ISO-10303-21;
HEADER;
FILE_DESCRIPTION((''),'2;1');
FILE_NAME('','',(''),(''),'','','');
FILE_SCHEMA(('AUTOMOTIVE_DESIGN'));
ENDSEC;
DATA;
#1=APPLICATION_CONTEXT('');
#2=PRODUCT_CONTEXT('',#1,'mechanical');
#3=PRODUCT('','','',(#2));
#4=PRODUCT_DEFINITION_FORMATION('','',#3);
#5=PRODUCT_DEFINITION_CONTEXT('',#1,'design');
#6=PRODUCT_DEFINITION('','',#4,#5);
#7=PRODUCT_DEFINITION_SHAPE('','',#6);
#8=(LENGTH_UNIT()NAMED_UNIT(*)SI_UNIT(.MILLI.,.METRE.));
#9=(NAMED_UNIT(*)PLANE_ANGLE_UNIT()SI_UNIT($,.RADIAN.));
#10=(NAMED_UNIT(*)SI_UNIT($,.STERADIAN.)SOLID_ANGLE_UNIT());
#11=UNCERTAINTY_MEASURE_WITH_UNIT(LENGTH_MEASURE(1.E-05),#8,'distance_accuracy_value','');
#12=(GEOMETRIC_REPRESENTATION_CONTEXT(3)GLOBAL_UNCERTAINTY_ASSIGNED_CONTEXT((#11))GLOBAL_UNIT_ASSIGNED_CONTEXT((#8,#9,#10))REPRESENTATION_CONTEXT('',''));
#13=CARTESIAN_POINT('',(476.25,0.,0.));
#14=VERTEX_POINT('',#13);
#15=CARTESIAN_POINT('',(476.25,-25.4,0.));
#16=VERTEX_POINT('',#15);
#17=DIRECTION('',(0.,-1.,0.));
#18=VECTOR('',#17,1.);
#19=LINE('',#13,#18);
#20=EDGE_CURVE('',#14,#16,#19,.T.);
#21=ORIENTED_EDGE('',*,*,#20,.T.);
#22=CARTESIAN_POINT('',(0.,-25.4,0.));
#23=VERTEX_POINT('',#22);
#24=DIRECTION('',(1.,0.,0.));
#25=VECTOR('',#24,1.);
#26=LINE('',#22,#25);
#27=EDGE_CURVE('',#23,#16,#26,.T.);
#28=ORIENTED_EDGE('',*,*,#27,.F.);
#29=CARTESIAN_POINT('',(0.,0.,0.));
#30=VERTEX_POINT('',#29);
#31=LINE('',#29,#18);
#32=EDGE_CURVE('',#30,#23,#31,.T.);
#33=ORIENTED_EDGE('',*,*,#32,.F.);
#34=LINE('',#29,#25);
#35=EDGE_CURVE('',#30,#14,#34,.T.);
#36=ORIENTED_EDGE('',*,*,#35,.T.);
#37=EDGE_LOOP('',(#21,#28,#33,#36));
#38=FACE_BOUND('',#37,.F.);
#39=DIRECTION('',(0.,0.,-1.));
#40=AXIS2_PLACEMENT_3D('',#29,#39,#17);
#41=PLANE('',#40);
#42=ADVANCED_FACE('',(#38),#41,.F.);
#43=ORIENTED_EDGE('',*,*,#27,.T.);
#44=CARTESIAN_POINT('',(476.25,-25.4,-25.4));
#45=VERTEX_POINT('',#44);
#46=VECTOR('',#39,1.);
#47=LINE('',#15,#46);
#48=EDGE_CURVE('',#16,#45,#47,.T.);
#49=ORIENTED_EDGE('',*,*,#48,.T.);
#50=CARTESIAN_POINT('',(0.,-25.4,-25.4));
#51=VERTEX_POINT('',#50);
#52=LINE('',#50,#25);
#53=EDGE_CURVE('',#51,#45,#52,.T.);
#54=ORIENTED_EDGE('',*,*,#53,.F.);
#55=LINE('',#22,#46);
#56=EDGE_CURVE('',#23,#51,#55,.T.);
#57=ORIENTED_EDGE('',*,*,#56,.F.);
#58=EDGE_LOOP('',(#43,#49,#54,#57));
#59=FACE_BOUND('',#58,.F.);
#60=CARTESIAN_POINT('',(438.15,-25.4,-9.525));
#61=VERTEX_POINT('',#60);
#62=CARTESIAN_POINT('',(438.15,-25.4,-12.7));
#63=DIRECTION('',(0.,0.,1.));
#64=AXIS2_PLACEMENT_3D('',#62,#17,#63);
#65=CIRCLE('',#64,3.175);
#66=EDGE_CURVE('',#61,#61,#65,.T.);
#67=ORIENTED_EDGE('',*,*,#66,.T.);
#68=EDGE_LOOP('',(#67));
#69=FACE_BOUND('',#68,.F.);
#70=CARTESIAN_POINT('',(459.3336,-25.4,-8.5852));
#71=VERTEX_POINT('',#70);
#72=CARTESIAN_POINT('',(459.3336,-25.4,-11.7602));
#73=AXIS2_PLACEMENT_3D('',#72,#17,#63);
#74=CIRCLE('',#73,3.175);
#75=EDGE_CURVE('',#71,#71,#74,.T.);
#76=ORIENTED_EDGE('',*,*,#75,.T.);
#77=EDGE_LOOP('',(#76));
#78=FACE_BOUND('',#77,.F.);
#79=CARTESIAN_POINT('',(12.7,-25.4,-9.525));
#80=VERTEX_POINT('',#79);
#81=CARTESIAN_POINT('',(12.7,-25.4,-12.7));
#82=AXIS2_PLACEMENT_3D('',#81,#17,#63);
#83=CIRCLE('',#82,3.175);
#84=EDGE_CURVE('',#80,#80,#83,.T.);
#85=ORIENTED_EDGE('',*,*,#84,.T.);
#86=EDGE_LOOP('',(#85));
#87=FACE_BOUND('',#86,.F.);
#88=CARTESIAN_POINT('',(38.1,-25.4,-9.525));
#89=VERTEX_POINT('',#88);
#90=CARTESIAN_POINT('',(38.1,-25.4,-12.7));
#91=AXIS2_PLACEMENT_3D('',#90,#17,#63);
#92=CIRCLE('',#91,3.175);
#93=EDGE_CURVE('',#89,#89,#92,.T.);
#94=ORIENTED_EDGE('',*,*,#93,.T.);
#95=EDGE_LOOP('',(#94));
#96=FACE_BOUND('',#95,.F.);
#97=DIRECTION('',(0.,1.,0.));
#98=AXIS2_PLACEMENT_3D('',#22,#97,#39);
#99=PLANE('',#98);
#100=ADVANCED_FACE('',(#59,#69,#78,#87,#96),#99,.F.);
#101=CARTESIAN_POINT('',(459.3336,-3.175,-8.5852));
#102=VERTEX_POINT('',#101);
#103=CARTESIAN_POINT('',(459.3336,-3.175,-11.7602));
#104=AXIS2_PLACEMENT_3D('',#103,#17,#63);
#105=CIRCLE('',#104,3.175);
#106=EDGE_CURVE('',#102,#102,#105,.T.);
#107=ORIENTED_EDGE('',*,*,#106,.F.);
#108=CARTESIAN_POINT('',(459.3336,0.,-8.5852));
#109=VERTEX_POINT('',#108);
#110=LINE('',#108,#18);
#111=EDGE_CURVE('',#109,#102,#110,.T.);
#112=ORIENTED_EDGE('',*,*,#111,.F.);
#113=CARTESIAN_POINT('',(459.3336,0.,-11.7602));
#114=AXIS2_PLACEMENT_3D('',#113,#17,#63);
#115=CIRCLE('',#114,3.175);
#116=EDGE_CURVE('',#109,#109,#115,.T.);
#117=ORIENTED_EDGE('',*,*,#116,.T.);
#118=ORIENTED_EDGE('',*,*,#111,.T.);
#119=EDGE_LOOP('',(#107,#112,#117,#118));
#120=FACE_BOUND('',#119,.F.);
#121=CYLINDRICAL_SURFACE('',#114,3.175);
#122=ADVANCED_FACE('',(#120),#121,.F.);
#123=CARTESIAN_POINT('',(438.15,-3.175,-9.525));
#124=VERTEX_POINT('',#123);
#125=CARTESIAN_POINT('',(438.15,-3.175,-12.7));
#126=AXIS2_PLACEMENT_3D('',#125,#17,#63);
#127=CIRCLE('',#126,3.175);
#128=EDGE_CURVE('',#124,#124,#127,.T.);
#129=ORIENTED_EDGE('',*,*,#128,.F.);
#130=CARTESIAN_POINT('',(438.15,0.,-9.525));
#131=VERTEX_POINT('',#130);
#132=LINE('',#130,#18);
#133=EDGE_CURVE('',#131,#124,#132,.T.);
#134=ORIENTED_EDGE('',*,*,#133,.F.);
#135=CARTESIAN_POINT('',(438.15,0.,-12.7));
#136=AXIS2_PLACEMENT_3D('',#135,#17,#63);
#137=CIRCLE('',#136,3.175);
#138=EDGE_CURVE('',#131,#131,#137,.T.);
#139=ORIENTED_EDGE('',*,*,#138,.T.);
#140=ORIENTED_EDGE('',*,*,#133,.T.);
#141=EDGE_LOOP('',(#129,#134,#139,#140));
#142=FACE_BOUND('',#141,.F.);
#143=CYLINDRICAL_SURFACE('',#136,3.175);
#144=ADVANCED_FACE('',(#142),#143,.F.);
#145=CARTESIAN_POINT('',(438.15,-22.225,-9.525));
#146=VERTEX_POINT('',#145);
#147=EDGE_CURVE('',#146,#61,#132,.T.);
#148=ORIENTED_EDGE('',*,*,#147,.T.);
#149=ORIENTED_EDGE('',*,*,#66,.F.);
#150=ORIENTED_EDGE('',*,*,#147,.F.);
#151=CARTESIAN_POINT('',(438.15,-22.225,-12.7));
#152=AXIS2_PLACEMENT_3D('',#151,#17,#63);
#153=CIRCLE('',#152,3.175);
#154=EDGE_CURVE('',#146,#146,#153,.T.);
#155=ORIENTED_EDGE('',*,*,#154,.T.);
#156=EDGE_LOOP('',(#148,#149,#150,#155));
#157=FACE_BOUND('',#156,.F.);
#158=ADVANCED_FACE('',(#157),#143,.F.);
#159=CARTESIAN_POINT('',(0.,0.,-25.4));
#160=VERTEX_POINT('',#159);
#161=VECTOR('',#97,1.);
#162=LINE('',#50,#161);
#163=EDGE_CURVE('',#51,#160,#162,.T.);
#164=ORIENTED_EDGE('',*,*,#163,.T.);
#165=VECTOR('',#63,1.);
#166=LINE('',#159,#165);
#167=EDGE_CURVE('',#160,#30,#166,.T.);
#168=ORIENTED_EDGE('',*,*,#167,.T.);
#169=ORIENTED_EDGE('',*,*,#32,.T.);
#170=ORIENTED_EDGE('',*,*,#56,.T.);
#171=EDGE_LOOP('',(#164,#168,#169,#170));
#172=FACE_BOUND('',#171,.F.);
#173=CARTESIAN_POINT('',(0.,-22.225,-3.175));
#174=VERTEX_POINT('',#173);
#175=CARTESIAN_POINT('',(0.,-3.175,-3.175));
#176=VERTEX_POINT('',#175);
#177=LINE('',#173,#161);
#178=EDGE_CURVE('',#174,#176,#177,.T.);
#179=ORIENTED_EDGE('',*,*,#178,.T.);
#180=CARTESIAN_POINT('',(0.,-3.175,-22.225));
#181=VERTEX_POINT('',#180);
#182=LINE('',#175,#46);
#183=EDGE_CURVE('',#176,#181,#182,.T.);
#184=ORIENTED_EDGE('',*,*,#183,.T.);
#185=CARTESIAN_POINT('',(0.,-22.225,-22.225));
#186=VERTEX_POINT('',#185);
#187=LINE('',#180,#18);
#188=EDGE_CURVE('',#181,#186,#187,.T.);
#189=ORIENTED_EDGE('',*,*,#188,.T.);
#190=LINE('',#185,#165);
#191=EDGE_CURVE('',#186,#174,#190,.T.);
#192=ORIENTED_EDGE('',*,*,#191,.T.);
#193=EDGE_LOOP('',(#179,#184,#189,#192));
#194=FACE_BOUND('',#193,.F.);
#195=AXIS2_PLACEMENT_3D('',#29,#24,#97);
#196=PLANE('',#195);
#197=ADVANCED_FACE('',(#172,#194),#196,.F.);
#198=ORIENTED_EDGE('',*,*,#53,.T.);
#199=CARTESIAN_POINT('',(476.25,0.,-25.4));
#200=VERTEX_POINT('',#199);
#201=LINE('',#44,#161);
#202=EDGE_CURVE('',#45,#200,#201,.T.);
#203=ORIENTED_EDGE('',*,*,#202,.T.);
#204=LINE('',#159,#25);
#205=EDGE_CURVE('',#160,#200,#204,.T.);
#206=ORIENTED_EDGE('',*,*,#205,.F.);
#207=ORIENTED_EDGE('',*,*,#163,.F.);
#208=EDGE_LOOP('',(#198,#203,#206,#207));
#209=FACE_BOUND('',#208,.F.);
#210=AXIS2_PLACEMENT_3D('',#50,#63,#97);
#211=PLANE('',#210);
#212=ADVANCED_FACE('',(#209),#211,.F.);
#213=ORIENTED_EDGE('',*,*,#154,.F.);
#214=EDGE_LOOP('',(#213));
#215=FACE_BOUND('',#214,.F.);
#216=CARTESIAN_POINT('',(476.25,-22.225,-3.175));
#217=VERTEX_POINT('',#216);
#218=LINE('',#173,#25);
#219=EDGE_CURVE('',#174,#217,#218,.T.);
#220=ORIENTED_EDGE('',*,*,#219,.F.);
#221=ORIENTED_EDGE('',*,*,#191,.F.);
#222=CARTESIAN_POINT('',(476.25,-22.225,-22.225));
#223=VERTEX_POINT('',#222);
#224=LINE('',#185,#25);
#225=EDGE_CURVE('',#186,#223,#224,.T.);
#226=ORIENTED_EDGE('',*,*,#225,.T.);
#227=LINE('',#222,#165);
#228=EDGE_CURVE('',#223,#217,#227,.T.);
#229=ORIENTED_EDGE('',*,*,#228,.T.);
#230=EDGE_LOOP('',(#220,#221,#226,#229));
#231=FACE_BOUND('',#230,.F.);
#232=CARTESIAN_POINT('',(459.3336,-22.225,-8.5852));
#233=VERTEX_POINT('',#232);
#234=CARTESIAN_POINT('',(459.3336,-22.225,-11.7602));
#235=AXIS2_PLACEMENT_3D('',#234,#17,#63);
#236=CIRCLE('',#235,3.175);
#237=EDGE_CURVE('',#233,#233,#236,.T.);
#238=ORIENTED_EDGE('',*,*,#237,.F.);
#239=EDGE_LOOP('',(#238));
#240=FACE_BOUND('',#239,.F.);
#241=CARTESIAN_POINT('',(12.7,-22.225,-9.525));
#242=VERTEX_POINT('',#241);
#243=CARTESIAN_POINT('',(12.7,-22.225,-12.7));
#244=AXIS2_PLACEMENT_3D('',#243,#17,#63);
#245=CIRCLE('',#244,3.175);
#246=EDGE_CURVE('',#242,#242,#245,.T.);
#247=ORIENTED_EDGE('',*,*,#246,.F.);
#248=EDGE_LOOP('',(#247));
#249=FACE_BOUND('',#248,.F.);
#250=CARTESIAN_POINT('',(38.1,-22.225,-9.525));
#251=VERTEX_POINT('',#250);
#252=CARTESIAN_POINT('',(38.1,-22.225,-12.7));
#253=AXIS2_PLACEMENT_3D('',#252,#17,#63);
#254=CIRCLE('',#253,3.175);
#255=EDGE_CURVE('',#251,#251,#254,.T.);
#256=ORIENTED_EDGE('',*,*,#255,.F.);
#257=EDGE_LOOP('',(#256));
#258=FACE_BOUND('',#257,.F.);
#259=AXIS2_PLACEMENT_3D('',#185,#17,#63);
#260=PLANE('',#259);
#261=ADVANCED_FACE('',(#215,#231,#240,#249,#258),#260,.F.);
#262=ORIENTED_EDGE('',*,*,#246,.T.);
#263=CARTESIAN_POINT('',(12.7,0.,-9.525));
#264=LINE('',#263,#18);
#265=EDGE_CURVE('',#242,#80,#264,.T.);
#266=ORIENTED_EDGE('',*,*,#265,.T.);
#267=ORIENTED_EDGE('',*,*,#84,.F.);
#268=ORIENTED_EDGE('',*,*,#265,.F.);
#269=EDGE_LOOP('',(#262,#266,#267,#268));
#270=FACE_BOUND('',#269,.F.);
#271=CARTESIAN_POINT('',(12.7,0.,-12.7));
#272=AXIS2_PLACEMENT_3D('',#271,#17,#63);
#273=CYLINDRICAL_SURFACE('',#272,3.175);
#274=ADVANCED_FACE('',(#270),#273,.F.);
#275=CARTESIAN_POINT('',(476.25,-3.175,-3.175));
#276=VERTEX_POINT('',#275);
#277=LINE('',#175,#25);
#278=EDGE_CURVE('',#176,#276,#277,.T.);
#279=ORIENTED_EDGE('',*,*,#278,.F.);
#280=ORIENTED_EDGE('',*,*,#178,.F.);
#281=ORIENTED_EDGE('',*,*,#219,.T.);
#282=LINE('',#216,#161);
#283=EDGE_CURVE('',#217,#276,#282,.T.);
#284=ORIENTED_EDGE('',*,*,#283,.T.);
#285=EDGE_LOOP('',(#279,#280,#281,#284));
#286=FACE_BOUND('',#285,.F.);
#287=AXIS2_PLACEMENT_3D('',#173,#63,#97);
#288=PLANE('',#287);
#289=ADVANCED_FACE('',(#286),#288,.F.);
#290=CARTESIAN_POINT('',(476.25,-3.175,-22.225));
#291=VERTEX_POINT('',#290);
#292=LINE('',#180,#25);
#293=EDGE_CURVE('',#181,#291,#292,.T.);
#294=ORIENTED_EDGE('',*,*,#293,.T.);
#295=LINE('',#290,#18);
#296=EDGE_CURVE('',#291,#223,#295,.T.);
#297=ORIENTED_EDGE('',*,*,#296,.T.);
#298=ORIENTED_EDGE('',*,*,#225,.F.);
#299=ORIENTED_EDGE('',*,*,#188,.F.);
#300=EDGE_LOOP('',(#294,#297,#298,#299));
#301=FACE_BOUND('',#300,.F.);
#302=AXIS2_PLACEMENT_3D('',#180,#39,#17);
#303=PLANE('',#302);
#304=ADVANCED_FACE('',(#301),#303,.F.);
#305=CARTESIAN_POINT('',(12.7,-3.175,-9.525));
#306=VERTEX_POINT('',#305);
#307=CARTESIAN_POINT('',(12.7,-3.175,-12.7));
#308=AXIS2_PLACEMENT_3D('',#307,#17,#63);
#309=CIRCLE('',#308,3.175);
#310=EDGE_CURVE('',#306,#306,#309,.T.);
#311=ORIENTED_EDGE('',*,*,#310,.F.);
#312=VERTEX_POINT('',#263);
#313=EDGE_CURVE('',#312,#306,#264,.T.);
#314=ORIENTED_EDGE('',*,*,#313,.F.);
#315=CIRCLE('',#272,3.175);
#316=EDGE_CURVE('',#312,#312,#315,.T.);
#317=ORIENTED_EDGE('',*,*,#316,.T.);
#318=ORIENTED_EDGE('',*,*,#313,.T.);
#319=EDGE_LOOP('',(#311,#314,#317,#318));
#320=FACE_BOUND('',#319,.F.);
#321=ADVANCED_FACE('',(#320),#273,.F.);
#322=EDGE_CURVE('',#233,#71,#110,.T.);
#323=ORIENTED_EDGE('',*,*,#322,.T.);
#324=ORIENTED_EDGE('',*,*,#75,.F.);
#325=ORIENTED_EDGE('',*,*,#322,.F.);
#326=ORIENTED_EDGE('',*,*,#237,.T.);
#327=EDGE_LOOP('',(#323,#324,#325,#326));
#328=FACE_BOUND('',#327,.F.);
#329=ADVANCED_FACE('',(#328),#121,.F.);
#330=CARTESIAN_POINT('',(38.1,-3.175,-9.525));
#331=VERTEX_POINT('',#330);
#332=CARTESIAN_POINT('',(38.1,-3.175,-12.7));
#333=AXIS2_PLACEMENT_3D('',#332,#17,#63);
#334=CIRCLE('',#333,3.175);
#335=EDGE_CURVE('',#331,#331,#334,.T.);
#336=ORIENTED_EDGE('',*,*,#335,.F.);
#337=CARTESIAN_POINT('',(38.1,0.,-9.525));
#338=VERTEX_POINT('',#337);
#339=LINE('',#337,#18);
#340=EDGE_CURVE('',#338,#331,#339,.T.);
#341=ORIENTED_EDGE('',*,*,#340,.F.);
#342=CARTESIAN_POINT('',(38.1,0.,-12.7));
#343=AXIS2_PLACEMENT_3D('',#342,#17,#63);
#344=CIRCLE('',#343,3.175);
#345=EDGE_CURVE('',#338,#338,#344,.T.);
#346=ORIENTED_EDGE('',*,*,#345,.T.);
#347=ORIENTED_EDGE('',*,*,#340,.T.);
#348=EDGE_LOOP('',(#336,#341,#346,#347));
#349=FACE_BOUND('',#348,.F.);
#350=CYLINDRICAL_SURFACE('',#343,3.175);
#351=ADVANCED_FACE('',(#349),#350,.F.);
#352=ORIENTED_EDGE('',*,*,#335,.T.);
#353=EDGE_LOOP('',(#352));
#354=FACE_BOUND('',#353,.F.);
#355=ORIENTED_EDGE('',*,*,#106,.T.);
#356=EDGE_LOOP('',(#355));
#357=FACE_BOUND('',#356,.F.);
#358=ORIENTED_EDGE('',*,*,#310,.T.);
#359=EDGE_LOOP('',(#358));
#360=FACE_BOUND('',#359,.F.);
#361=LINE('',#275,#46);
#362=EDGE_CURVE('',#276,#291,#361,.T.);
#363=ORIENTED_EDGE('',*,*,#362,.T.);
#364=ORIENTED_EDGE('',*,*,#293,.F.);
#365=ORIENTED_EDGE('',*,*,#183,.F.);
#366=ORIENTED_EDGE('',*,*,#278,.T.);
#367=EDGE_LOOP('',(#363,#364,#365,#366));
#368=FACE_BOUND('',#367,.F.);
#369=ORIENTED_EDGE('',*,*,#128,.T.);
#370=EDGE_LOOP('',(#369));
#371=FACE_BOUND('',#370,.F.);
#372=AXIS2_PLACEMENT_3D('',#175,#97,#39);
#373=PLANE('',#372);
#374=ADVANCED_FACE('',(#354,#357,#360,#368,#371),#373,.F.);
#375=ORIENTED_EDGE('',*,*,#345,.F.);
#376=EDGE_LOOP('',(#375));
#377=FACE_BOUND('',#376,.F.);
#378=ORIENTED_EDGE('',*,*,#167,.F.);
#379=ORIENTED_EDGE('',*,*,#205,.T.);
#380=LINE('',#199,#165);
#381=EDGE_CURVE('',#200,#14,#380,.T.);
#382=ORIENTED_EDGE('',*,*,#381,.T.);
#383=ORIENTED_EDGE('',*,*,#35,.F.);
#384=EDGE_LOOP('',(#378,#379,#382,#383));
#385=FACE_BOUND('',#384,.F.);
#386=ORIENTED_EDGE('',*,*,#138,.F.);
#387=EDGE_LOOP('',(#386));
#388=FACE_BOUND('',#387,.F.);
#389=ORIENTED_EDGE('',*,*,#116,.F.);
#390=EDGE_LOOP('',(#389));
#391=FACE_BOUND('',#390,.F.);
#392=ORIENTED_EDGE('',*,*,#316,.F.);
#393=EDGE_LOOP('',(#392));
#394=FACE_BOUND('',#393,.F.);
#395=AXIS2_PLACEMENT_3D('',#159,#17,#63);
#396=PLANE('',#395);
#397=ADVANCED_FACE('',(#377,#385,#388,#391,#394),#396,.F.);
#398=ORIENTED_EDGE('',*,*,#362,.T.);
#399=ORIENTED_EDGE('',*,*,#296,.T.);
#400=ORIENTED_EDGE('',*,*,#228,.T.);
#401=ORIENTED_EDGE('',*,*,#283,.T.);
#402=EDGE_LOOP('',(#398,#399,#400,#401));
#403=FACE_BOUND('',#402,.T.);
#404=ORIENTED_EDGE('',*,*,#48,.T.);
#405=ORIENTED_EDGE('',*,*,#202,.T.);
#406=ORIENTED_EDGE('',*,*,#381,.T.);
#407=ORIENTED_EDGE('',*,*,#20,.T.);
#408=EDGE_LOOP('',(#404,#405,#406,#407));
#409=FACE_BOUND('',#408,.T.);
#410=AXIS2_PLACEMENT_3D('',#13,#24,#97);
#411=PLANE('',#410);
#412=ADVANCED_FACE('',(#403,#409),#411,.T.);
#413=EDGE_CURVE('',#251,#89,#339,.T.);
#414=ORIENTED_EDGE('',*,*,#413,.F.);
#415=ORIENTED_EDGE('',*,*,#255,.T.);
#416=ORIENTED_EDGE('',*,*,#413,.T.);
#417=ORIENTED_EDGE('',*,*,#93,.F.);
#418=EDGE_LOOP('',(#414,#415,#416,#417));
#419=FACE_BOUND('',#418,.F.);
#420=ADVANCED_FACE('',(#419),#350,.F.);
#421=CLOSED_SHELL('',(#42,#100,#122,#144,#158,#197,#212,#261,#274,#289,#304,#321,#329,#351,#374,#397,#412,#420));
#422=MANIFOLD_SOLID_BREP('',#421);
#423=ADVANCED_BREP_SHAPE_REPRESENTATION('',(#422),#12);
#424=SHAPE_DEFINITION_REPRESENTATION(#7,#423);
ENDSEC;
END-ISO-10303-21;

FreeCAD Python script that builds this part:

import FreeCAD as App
import Part
import Sketcher

V = App.Vector
Q = App.Units.Quantity


def add_polygon(sketch, points):
    """Adds a closed chain of lines whose ends are joined by coincident constraints."""
    first, n = sketch.GeometryCount, len(points)
    for a, b in zip(points, points[1:] + points[:1]):
        sketch.addGeometry(Part.LineSegment(App.Vector(*a, 0), App.Vector(*b, 0)), False)
    for i in range(n):
        sketch.addConstraint(Sketcher.Constraint("Coincident", first + i, 2, first + (i + 1) % n, 1))

doc = App.newDocument("Part")
params = doc.addObject("Spreadsheet::Sheet", "Params")
for row, (alias, value) in enumerate([
    ("sketch1_width", "1 in"),
    ("pad1_length", "18.75 in"),
    ("sketch2_diameter", "0.25 in"),
    ("hole_diameter", "0.25 in"),
], start=1):
    params.set(f"A{row}", alias)
    params.set(f"B{row}", "=" + value)
    params.setAlias(f"B{row}", alias)

body = doc.addObject("PartDesign::Body", "Body")

# Sketch on YZ plane
sketch1 = body.newObject("Sketcher::SketchObject", "Sketch")
sketch1.AttachmentSupport = (doc.getObject("YZ_Plane"), [""])
sketch1.MapMode = "FlatFace"
add_polygon(sketch1, [(0, -25), (0, 0), (-25, 0), (-25, -25)])  # lines 0-3
add_polygon(sketch1, [(-3, -3), (-3, -22), (-22, -22), (-22, -3)])  # lines 4-7
sketch1.addConstraint([
    Sketcher.Constraint("Vertical", 0),
    Sketcher.Constraint("Horizontal", 1),
    Sketcher.Constraint("Vertical", 2),
    Sketcher.Constraint("Horizontal", 3),
    Sketcher.Constraint("Vertical", 4),
    Sketcher.Constraint("Horizontal", 5),
    Sketcher.Constraint("Vertical", 6),
    Sketcher.Constraint("Horizontal", 7),
    Sketcher.Constraint("Coincident", 0, 2, -1, 1),
    Sketcher.Constraint("Equal", 3, 0),
    Sketcher.Constraint("Equal", 7, 4),
    Sketcher.Constraint("DistanceX", 1, 2, 1, 1, Q("1 in")),
    Sketcher.Constraint("DistanceX", 4, 2, -1, 1, Q("0.125 in")),
    Sketcher.Constraint("DistanceY", 6, 2, -1, 1, Q("0.125 in")),
    Sketcher.Constraint("DistanceY", 3, 2, 4, 2, Q("0.125 in")),
])
sketch1.setExpression("Constraints[19]", "Params.sketch1_width")
pad1 = body.newObject("PartDesign::Pad", "Pad")
pad1.Profile = sketch1
pad1.setExpression("Length", "Params.pad1_length")

# Sketch on XZ plane
sketch2 = body.newObject("Sketcher::SketchObject", "Sketch001")
sketch2.AttachmentSupport = (doc.getObject("XZ_Plane"), [""])
sketch2.MapMode = "FlatFace"
sketch2.addGeometry([
    Part.Circle(V(438.1, -12.7, 0), V(0, 0, 1), 3.2),
    Part.Circle(V(12.7, -12.7, 0), V(0, 0, 1), 3.2),
    Part.Circle(V(38.1, -12.7, 0), V(0, 0, 1), 3.2),
    Part.Circle(V(459.3, -11.8, 0), V(0, 0, 1), 3.2),
], False)
sketch2.addConstraint([
    Sketcher.Constraint("Equal", 0, 1),
    Sketcher.Constraint("Equal", 1, 2),
    Sketcher.Constraint("Equal", 2, 3),
    Sketcher.Constraint("Horizontal", 0, 3, 1, 3),
    Sketcher.Constraint("Horizontal", 1, 3, 2, 3),
    Sketcher.Constraint("Diameter", 0, Q("0.25 in")),
    Sketcher.Constraint("DistanceX", 1, 3, 2, 3, Q("1 in")),
    Sketcher.Constraint("DistanceY", 0, 3, -1, 1, Q("0.5 in")),
    Sketcher.Constraint("DistanceX", -1, 1, 1, 3, Q("0.5 in")),
    Sketcher.Constraint("DistanceX", -1, 1, 0, 3, Q("17.25 in")),
    Sketcher.Constraint("DistanceX", -1, 1, 3, 3, Q("18.084 in")),
    Sketcher.Constraint("DistanceY", 3, 3, -1, 1, Q("0.463 in")),
])
sketch2.setExpression("Constraints[5]", "Params.sketch2_diameter")
doc.recompute()
hole = body.newObject("PartDesign::Hole", "Hole")
hole.Profile = sketch2
hole.ThreadType = "None"
hole.setExpression("Diameter", "Params.hole_diameter")
hole.DepthType = "ThroughAll"
hole.Reversed = True

doc.recompute()
